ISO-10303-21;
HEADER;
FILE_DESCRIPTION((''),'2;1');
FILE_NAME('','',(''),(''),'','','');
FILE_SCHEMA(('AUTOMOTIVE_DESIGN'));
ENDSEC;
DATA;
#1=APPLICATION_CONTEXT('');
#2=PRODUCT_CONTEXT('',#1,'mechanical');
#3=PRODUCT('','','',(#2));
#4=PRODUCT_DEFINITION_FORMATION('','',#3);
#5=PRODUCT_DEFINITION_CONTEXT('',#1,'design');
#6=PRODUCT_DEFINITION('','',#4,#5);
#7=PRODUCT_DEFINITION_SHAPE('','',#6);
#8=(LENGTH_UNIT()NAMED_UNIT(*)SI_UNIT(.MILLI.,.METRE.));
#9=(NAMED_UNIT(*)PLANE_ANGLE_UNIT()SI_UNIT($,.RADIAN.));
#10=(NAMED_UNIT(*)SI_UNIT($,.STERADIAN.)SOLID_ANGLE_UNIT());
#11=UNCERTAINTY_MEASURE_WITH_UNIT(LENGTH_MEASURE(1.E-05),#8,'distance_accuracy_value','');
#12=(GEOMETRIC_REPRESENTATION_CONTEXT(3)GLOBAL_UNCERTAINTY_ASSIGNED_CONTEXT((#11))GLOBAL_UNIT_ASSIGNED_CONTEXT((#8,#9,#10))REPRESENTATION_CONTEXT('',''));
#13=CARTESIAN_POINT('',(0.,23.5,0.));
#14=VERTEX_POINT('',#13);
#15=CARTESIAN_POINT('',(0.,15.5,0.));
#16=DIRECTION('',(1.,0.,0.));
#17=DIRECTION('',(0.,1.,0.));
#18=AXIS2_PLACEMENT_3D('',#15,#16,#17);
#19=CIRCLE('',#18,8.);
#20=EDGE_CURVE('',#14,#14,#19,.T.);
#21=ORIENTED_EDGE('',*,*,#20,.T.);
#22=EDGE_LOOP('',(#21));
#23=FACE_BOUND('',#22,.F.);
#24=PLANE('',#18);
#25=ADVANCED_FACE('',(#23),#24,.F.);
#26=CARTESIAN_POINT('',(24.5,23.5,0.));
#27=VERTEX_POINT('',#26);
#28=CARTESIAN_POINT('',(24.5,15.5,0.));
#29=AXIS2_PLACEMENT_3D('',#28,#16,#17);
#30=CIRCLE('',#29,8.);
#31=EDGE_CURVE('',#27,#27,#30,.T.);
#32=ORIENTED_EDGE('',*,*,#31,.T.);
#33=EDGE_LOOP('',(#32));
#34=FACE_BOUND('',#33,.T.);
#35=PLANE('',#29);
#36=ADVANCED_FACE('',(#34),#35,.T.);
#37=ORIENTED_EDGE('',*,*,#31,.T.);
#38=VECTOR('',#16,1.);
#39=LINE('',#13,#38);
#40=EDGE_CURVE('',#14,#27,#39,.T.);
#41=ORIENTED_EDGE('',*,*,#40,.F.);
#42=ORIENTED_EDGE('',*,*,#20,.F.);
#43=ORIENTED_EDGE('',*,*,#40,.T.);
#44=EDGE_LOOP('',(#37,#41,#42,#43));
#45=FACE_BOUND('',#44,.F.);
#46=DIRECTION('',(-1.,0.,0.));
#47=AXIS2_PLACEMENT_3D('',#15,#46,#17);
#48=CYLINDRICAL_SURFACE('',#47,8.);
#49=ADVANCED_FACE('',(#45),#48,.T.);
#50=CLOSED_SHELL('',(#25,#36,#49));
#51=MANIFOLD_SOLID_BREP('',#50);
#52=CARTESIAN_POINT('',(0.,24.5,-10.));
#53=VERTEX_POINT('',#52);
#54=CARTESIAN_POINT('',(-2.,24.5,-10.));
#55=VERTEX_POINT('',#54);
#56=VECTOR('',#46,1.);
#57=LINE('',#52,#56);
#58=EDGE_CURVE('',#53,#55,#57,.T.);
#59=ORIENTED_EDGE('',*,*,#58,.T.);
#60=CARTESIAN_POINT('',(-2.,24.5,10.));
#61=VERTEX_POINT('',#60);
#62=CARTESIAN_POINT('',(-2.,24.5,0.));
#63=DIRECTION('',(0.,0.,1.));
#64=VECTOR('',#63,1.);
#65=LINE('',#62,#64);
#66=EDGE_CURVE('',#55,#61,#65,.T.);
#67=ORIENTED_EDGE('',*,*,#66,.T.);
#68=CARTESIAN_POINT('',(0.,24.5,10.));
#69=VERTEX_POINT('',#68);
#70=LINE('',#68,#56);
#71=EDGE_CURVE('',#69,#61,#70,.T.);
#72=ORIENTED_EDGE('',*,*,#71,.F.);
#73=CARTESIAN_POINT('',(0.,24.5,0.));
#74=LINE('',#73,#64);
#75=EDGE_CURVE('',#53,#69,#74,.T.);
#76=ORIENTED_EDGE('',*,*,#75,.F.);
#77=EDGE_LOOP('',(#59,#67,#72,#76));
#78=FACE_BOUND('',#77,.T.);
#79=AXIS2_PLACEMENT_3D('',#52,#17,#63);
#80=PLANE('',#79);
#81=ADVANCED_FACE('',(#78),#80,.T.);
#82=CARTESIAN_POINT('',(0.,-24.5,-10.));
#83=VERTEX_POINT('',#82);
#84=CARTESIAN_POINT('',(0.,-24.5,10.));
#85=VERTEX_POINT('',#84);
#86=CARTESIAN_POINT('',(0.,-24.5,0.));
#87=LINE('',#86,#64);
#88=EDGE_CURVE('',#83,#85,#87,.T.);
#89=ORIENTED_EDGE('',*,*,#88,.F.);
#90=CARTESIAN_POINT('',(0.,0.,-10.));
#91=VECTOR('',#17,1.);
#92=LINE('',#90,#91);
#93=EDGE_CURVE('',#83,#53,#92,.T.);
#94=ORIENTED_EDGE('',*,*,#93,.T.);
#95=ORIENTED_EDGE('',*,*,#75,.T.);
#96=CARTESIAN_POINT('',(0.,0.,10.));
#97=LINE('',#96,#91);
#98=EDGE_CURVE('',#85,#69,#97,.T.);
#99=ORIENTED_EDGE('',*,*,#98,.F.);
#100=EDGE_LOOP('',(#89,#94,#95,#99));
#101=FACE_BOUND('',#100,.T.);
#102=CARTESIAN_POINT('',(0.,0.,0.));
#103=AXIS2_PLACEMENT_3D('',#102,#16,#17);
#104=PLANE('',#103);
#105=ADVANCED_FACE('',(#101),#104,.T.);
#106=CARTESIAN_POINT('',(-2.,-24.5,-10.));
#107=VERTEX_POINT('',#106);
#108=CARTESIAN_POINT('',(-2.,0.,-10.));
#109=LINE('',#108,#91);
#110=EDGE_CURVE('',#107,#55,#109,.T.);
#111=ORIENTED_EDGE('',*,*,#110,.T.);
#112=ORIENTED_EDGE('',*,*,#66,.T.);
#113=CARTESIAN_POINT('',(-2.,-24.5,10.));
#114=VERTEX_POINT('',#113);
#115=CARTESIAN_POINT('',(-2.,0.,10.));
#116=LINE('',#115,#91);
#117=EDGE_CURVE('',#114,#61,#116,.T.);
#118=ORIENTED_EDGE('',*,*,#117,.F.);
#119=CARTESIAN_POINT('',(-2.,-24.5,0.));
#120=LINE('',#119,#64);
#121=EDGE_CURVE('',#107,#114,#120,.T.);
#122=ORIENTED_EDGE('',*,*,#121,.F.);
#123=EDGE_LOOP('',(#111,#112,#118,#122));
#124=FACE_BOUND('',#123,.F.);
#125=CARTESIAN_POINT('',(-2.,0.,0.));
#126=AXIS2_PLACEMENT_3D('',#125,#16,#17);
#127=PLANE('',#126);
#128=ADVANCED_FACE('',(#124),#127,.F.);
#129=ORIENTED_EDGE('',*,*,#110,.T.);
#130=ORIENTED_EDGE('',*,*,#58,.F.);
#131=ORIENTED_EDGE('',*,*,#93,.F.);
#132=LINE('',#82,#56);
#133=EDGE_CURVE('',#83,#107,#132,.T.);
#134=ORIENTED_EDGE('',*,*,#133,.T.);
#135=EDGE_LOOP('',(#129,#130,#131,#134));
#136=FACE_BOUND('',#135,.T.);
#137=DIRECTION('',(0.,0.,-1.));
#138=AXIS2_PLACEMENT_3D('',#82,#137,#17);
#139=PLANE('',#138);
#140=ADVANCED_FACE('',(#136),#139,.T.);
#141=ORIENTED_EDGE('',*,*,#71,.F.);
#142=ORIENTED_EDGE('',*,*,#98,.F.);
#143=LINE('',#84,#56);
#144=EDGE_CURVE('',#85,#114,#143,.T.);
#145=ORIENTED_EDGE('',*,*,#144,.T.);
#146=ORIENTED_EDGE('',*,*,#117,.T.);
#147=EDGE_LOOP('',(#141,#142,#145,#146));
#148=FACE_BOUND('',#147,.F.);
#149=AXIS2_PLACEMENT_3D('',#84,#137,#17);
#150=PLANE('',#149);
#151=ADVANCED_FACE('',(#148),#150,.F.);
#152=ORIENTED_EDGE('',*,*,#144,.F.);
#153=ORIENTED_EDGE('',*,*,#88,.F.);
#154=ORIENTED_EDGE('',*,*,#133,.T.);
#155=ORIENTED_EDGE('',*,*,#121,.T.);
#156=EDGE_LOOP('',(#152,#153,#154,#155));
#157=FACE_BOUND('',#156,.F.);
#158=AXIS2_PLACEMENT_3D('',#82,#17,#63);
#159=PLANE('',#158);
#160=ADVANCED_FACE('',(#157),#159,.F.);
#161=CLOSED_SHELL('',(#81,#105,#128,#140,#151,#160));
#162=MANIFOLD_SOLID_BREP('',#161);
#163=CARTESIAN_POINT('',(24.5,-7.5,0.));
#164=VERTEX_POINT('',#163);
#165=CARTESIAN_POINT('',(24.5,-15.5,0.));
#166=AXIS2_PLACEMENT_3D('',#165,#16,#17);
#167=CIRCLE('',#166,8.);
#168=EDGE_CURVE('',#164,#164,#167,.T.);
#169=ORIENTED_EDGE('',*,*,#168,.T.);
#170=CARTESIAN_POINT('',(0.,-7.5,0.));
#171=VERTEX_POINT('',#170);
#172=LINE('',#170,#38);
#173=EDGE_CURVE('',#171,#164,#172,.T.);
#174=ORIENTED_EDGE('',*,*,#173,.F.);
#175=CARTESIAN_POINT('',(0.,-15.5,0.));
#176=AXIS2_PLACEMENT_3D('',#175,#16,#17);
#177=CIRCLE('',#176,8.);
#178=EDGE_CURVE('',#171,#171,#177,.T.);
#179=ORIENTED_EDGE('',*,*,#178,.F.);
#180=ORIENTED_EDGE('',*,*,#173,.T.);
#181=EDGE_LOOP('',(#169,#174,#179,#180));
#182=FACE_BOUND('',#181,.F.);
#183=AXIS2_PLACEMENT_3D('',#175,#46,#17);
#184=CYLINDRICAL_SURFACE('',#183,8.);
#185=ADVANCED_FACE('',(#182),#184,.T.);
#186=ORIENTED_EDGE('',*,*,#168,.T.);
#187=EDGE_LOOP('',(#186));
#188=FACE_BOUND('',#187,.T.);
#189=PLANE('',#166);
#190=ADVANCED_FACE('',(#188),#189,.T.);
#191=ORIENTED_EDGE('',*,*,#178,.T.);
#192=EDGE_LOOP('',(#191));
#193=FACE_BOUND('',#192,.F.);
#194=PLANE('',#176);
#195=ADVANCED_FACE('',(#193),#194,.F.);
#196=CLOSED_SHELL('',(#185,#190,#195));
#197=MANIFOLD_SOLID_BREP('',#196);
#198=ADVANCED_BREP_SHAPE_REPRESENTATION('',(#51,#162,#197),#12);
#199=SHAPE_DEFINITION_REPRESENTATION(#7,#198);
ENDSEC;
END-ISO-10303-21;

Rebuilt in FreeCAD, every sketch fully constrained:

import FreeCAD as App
import Part
import Sketcher


def add_polygon(sketch, points):
    """Adds a closed chain of lines whose ends are joined by coincident constraints."""
    first, n = sketch.GeometryCount, len(points)
    for a, b in zip(points, points[1:] + points[:1]):
        sketch.addGeometry(Part.LineSegment(App.Vector(*a, 0), App.Vector(*b, 0)), False)
    for i in range(n):
        sketch.addConstraint(Sketcher.Constraint("Coincident", first + i, 2, first + (i + 1) % n, 1))

doc = App.newDocument("Part")
body = doc.addObject("PartDesign::Body", "Body")
body.AllowCompound = True

sketch1 = body.newObject("Sketcher::SketchObject", "Sketch")
sketch1.AttachmentSupport = (doc.getObject("YZ_Plane"), [""])
sketch1.MapMode = "FlatFace"
sketch1.addGeometry(Part.Circle(App.Vector(-16, 0, 0), App.Vector(0, 0, 1), 8), False)
sketch1.addGeometry(Part.Circle(App.Vector(16, 0, 0), App.Vector(0, 0, 1), 8), False)
sketch1.addConstraint(Sketcher.Constraint("Equal", 0, 1))
sketch1.addConstraint(Sketcher.Constraint("Symmetric", 0, 3, 1, 3, -1, 1))
sketch1.addConstraint(Sketcher.Constraint("PointOnObject", 0, 3, -1))
sketch1.addConstraint(Sketcher.Constraint("Diameter", 0, 16.0))
sketch1.addConstraint(Sketcher.Constraint("DistanceX", 0, 3, 1, 3, 31.0))
pad1 = body.newObject("PartDesign::Pad", "Pad")
pad1.Profile = sketch1
pad1.Length = 24.5
body2 = doc.addObject("PartDesign::Body", "Body001")

sketch2 = body2.newObject("Sketcher::SketchObject", "Sketch001")
sketch2.AttachmentSupport = (doc.getObject("YZ_Plane001"), [""])
sketch2.MapMode = "FlatFace"
add_polygon(sketch2, [(-24, 10), (-24, -10), (24, -10), (24, 10)])
sketch2.addConstraint(Sketcher.Constraint("Vertical", 0))
sketch2.addConstraint(Sketcher.Constraint("Horizontal", 1))
sketch2.addConstraint(Sketcher.Constraint("Vertical", 2))
sketch2.addConstraint(Sketcher.Constraint("Horizontal", 3))
sketch2.addConstraint(Sketcher.Constraint("Symmetric", 0, 2, 2, 2, -1, 1))
sketch2.addConstraint(Sketcher.Constraint("DistanceX", 1, 1, 1, 2, 49.0))
sketch2.addConstraint(Sketcher.Constraint("DistanceY", 0, 2, 0, 1, 20.0))
pad2 = body2.newObject("PartDesign::Pad", "Pad001")
pad2.Profile = sketch2
pad2.Length = 2
pad2.Reversed = True

doc.recompute()
